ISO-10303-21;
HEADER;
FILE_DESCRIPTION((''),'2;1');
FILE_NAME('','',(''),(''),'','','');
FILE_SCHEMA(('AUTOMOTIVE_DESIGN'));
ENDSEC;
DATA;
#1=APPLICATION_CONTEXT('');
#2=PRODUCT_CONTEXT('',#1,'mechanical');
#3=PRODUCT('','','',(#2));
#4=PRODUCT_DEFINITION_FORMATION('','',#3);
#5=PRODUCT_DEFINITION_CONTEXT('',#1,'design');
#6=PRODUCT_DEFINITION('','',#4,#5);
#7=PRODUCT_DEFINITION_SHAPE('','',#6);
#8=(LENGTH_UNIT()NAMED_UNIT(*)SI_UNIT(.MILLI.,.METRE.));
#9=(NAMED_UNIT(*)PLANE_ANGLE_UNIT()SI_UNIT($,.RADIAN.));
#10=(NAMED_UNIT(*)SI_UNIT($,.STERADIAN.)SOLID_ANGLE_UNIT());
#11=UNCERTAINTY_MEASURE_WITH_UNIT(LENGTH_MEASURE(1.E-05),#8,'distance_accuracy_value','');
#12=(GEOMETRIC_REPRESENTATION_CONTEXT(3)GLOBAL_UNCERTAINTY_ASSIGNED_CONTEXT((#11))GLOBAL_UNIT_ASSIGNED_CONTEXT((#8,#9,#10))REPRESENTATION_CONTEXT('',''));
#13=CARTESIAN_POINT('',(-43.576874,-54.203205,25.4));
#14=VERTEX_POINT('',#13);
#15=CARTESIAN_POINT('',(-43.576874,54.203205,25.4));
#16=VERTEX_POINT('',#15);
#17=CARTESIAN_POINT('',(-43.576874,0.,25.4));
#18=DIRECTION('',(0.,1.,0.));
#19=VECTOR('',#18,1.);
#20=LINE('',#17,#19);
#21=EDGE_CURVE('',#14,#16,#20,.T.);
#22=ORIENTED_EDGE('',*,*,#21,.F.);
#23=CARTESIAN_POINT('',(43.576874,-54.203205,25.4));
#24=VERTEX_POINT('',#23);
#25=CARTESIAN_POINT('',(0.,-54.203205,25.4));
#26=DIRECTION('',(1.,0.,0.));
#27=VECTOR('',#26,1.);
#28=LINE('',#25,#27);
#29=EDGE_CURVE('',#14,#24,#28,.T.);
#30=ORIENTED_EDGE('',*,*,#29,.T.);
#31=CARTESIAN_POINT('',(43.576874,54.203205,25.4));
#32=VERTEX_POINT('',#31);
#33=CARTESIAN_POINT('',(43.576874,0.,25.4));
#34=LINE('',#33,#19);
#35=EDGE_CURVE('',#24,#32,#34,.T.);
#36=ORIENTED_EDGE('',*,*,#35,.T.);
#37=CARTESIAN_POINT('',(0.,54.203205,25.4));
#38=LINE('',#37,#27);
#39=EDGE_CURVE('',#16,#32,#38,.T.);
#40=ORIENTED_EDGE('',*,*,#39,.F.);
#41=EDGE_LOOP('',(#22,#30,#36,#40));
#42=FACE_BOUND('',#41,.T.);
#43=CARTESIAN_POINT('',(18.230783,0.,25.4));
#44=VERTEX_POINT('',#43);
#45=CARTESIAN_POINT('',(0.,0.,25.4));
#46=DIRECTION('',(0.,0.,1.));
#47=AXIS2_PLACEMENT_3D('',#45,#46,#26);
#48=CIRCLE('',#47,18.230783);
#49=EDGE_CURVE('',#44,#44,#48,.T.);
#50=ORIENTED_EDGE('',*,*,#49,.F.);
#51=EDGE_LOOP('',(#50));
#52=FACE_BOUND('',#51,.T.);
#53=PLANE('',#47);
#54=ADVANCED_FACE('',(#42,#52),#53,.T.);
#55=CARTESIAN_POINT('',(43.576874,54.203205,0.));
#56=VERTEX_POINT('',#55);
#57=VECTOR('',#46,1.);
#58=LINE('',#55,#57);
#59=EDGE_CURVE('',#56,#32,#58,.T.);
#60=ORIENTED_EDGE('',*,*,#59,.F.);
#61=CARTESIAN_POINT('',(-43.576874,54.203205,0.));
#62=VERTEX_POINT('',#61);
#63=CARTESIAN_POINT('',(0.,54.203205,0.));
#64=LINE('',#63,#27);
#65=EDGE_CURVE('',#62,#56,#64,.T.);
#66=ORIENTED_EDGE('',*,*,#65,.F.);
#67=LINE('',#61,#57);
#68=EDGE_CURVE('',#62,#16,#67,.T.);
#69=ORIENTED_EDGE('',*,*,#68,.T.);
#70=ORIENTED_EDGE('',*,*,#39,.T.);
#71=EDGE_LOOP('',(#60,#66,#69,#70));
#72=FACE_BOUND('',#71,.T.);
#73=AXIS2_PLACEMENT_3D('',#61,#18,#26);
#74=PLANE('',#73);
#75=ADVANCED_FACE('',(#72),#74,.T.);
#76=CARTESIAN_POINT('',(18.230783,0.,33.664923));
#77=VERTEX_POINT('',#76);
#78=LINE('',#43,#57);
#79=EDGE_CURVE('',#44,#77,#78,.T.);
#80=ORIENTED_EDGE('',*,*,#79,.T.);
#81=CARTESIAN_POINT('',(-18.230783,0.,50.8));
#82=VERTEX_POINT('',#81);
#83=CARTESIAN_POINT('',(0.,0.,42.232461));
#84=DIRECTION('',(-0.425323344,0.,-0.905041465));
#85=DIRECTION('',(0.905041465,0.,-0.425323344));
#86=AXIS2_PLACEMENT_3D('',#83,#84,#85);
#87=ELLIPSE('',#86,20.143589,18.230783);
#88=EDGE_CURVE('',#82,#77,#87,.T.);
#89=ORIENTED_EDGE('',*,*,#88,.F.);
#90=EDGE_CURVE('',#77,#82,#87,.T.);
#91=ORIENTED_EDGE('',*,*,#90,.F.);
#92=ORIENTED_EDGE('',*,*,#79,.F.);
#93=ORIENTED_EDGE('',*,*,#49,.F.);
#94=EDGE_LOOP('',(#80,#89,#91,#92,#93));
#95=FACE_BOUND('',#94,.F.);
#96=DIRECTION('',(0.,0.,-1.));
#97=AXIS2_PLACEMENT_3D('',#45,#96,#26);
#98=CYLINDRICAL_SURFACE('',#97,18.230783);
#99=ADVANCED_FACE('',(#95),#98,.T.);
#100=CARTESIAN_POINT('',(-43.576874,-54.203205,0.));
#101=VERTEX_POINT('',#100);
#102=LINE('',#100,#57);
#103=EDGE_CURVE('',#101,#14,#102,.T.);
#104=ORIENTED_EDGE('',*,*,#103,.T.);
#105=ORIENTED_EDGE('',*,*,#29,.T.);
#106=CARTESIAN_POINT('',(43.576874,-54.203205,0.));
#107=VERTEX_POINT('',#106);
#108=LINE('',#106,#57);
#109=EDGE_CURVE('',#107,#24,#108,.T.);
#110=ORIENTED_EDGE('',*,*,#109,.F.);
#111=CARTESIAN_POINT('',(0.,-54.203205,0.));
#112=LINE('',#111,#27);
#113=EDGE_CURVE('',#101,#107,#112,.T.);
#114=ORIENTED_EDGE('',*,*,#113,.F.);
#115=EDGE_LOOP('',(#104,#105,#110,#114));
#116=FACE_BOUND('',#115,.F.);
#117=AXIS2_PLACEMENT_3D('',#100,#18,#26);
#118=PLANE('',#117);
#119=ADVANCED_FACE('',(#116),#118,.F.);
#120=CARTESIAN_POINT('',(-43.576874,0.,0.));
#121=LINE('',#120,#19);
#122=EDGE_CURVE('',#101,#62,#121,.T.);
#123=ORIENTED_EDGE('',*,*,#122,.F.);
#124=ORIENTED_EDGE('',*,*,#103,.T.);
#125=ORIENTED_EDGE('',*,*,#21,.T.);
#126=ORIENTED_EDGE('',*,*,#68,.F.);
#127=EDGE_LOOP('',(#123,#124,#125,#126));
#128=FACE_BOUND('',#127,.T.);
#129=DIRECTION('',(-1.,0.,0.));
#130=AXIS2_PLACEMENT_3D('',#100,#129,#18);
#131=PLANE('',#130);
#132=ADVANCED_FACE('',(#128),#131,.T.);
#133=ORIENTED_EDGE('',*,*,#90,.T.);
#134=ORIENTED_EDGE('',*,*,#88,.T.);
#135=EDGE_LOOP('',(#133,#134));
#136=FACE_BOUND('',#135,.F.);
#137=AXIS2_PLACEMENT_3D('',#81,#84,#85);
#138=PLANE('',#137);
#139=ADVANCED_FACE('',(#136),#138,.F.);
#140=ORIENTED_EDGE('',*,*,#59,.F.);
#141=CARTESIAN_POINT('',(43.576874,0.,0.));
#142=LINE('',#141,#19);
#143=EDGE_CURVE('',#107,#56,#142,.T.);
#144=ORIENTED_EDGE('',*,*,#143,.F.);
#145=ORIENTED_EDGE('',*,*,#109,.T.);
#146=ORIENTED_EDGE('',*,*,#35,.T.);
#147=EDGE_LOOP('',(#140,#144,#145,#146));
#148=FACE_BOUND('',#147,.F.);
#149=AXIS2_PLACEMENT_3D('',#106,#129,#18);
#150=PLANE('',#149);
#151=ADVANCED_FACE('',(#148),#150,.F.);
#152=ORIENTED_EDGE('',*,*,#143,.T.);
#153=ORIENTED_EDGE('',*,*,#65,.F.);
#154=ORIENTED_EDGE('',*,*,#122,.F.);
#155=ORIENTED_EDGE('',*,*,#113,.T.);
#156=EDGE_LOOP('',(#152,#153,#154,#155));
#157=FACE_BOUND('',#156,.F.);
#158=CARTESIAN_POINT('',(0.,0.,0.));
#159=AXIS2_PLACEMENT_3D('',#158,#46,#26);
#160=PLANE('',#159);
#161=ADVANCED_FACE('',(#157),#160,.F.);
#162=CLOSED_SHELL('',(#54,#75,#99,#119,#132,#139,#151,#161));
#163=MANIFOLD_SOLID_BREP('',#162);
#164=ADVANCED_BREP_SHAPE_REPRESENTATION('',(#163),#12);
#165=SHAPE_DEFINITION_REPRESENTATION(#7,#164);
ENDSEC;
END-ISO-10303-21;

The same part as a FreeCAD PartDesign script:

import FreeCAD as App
import Part
import Sketcher
Q = App.Units.Quantity

doc = App.newDocument("Part")
body = doc.addObject("PartDesign::Body", "Body")

# Sketch on XY plane
sketch1 = body.newObject("Sketcher::SketchObject", "Sketch")
sketch1.AttachmentSupport = (doc.getObject("XY_Plane"), [""])
sketch1.MapMode = "FlatFace"
sketch1.addGeometry(Part.LineSegment(App.Vector(-44, 54, 0), App.Vector(-44, -54, 0)), False)
sketch1.addGeometry(Part.LineSegment(App.Vector(-44, -54, 0), App.Vector(44, -54, 0)), False)
sketch1.addGeometry(Part.LineSegment(App.Vector(44, -54, 0), App.Vector(44, 54, 0)), False)
sketch1.addGeometry(Part.LineSegment(App.Vector(44, 54, 0), App.Vector(-44, 54, 0)), False)
sketch1.addConstraint(Sketcher.Constraint("Coincident", 0, 2, 1, 1))
sketch1.addConstraint(Sketcher.Constraint("Coincident", 1, 2, 2, 1))
sketch1.addConstraint(Sketcher.Constraint("Coincident", 2, 2, 3, 1))
sketch1.addConstraint(Sketcher.Constraint("Coincident", 3, 2, 0, 1))
sketch1.addConstraint(Sketcher.Constraint("Vertical", 0))
sketch1.addConstraint(Sketcher.Constraint("Horizontal", 1))
sketch1.addConstraint(Sketcher.Constraint("Vertical", 2))
sketch1.addConstraint(Sketcher.Constraint("Horizontal", 3))
sketch1.addConstraint(Sketcher.Constraint("Symmetric", 0, 2, 2, 2, -1, 1))
sketch1.addConstraint(Sketcher.Constraint("DistanceY", 0, 2, 0, 1, Q("108.40641 mm")))
sketch1.addConstraint(Sketcher.Constraint("DistanceX", 1, 1, 1, 2, Q("87.153748 mm")))
pad1 = body.newObject("PartDesign::Pad", "Pad")
pad1.Profile = sketch1
pad1.Length = Q("1 in")

# Sketch on XY plane
sketch2 = body.newObject("Sketcher::SketchObject", "Sketch001")
sketch2.AttachmentSupport = (doc.getObject("XY_Plane"), [""])
sketch2.MapMode = "FlatFace"
sketch2.AttachmentOffset = App.Placement(App.Vector(0, 0, 1 * 25.4), App.Rotation())
sketch2.addGeometry(Part.Circle(App.Vector(0, 0, 0), App.Vector(0, 0, 1), 18), False)
sketch2.addConstraint(Sketcher.Constraint("Coincident", 0, 3, -1, 1))
sketch2.addConstraint(Sketcher.Constraint("Diameter", 0, Q("36.461566 mm")))
pad2 = body.newObject("PartDesign::Pad", "Pad001")
pad2.Profile = sketch2
pad2.Length = Q("1 in")

# Sketch on XZ plane
sketch3 = body.newObject("Sketcher::SketchObject", "Sketch002")
sketch3.AttachmentSupport = (doc.getObject("XZ_Plane"), [""])
sketch3.MapMode = "FlatFace"
sketch3.addGeometry(Part.LineSegment(App.Vector(18, 34, 0), App.Vector(18, 51, 0)), False)
sketch3.addGeometry(Part.LineSegment(App.Vector(18, 51, 0), App.Vector(-18, 51, 0)), False)
sketch3.addGeometry(Part.LineSegment(App.Vector(-18, 51, 0), App.Vector(18, 34, 0)), False)
sketch3.addConstraint(Sketcher.Constraint("Coincident", 0, 2, 1, 1))
sketch3.addConstraint(Sketcher.Constraint("Coincident", 1, 2, 2, 1))
sketch3.addConstraint(Sketcher.Constraint("Coincident", 2, 2, 0, 1))
sketch3.addConstraint(Sketcher.Constraint("Vertical", 0))
sketch3.addConstraint(Sketcher.Constraint("Horizontal", 1))
sketch3.addConstraint(Sketcher.Constraint("DistanceY", -1, 1, 0, 2, Q("2 in")))
sketch3.addConstraint(Sketcher.Constraint("DistanceX", 1, 2, 1, 1, Q("36.461566 mm")))
sketch3.addConstraint(Sketcher.Constraint("DistanceY", 0, 1, 0, 2, Q("17.135077 mm")))
sketch3.addConstraint(Sketcher.Constraint("DistanceX", -1, 1, 0, 2, Q("18.230783 mm")))
pocket1 = body.newObject("PartDesign::Pocket", "Pocket")
pocket1.Profile = sketch3
pocket1.Length = Q("3 in")
pocket1.Midplane = True

doc.recompute()
